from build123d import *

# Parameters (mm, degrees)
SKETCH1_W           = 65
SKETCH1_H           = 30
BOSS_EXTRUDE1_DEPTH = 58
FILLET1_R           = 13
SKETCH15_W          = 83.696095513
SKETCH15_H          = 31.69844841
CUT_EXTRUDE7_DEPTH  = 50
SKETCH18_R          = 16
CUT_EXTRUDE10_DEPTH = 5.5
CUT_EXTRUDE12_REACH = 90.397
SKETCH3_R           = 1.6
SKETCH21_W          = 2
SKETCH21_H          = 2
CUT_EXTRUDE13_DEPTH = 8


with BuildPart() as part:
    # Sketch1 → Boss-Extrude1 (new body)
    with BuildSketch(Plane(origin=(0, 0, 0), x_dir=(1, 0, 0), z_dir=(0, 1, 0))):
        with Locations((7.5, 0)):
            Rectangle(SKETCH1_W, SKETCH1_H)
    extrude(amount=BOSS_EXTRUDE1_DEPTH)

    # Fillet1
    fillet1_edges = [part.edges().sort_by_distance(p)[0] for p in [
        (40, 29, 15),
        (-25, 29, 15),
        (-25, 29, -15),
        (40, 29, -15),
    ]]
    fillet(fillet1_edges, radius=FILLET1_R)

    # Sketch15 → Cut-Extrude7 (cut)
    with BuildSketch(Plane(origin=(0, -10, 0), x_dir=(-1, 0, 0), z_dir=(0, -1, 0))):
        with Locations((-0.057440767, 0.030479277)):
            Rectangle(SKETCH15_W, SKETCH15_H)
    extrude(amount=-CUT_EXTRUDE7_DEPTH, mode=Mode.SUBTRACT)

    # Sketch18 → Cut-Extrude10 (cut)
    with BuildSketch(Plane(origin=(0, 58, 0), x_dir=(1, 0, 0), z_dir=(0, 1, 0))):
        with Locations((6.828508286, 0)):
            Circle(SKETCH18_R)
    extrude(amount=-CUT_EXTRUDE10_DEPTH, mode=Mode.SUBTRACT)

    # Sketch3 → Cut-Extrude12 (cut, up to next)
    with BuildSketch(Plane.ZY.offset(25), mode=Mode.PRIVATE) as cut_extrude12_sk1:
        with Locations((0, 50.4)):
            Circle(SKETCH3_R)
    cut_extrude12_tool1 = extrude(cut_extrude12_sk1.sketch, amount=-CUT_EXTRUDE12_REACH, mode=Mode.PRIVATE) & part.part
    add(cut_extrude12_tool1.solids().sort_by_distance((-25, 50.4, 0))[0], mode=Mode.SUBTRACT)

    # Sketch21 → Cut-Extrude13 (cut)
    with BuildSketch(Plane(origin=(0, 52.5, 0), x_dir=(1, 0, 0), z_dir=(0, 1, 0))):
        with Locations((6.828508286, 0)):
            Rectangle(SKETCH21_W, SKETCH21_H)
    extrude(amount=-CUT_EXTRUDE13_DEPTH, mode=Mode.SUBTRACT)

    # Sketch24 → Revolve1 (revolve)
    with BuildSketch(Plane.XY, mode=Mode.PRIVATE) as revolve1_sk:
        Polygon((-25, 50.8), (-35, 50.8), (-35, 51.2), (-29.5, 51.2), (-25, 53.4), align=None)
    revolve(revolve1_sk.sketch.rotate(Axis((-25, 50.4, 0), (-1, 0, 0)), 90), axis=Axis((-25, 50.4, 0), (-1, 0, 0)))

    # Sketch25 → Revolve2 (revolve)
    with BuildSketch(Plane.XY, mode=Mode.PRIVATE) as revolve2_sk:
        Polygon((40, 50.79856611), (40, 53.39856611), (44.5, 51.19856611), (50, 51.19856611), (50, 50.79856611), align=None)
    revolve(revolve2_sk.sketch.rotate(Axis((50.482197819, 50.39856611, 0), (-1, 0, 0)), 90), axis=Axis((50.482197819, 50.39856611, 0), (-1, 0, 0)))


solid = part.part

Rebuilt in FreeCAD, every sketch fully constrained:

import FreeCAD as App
import Part
import Sketcher

V = App.Vector
Q = App.Units.Quantity


def edges_at(feature, points):
    """Names of the edges that pass closest to the given points."""
    edges = feature.Shape.Edges
    near = lambda p: min(range(len(edges)), key=lambda i: edges[i].distToShape(Part.Vertex(*p))[0])
    return sorted({f"Edge{near(p) + 1}" for p in points})


def add_polygon(sketch, points):
    """Adds a closed chain of lines whose ends are joined by coincident constraints."""
    first, n = sketch.GeometryCount, len(points)
    for a, b in zip(points, points[1:] + points[:1]):
        sketch.addGeometry(Part.LineSegment(App.Vector(*a, 0), App.Vector(*b, 0)), False)
    for i in range(n):
        sketch.addConstraint(Sketcher.Constraint("Coincident", first + i, 2, first + (i + 1) % n, 1))

doc = App.newDocument("Part")
body = doc.addObject("PartDesign::Body", "Body")

# Sketch on XZ plane
sketch1 = doc.addObject("Sketcher::SketchObject", "Sketch")
body.addObject(sketch1)
sketch1.AttachmentSupport = (doc.XZ_Plane, [""])
sketch1.MapMode = "FlatFace"
add_polygon(sketch1, [(-25, -15), (-25, 15), (40, 15), (40, -15)])  # lines 0-3
sketch1.addConstraint([
    Sketcher.Constraint("Vertical", 0),
    Sketcher.Constraint("Horizontal", 1),
    Sketcher.Constraint("Vertical", 2),
    Sketcher.Constraint("Horizontal", 3),
    Sketcher.Constraint("DistanceX", 1, 1, 1, 2, Q("65 mm")),
    Sketcher.Constraint("DistanceY", 0, 1, 0, 2, Q("30 mm")),
    Sketcher.Constraint("DistanceX", 0, 2, -1, 1, Q("25 mm")),
    Sketcher.Constraint("DistanceY", -1, 1, 0, 2, Q("15 mm")),
])
pad1 = doc.addObject("PartDesign::Pad", "Pad")
body.addObject(pad1)
pad1.Profile = sketch1
pad1.Length = 58
pad1.Reversed = True
doc.recompute()

fillet = doc.addObject("PartDesign::Fillet", "Fillet")
body.addObject(fillet)
fillet.Base = (pad1, edges_at(pad1, [
    (40, 29, 15),
    (-25, 29, 15),
    (-25, 29, -15),
    (40, 29, -15),
]))
fillet.Radius = 13

# Sketch on XZ plane
sketch2 = doc.addObject("Sketcher::SketchObject", "Sketch001")
body.addObject(sketch2)
sketch2.AttachmentSupport = (doc.XZ_Plane, [""])
sketch2.MapMode = "FlatFace"
sketch2.AttachmentOffset = App.Placement(V(0, 0, 10), App.Rotation())
add_polygon(sketch2, [(41.905489, -15.879703), (41.905489, 15.818745), (-41.790607, 15.818745), (-41.790607, -15.879703)])  # lines 0-3
sketch2.addConstraint([
    Sketcher.Constraint("Vertical", 0),
    Sketcher.Constraint("Horizontal", 1),
    Sketcher.Constraint("Vertical", 2),
    Sketcher.Constraint("Horizontal", 3),
    Sketcher.Constraint("DistanceY", 0, 1, 0, 2, Q("31.698448 mm")),
    Sketcher.Constraint("DistanceX", 1, 2, 1, 1, Q("83.696096 mm")),
    Sketcher.Constraint("DistanceX", -1, 1, 0, 2, Q("41.905489 mm")),
    Sketcher.Constraint("DistanceY", -1, 1, 0, 2, Q("15.818745 mm")),
])
pocket1 = doc.addObject("PartDesign::Pocket", "Pocket")
body.addObject(pocket1)
pocket1.Profile = sketch2
pocket1.Length = 50

# Sketch on XZ plane
sketch3 = doc.addObject("Sketcher::SketchObject", "Sketch002")
body.addObject(sketch3)
sketch3.AttachmentSupport = (doc.XZ_Plane, [""])
sketch3.MapMode = "FlatFace"
sketch3.AttachmentOffset = App.Placement(V(0, 0, -58), App.Rotation())
sketch3.addGeometry(Part.Circle(V(6.828508, 0, 0), V(0, 0, 1), 16), False)
sketch3.addConstraint([
    Sketcher.Constraint("PointOnObject", 0, 3, -1),
    Sketcher.Constraint("Diameter", 0, Q("32 mm")),
    Sketcher.Constraint("DistanceX", -1, 1, 0, 3, Q("6.828508 mm")),
])
pocket2 = doc.addObject("PartDesign::Pocket", "Pocket001")
body.addObject(pocket2)
pocket2.Profile = sketch3
pocket2.Length = 5.5
pocket2.Reversed = True

# Sketch on YZ plane
sketch4 = doc.addObject("Sketcher::SketchObject", "Sketch003")
body.addObject(sketch4)
sketch4.AttachmentSupport = (doc.YZ_Plane, [""])
sketch4.MapMode = "FlatFace"
sketch4.AttachmentOffset = App.Placement(V(0, 0, -25), App.Rotation())
sketch4.addGeometry(Part.Circle(V(50.4, 0, 0), V(0, 0, 1), 1.6), False)
sketch4.addConstraint([
    Sketcher.Constraint("PointOnObject", 0, 3, -1),
    Sketcher.Constraint("Diameter", 0, Q("3.2 mm")),
    Sketcher.Constraint("DistanceX", -1, 1, 0, 3, Q("50.4 mm")),
])
pocket3 = doc.addObject("PartDesign::Pocket", "Pocket002")
body.addObject(pocket3)
pocket3.Profile = sketch4
pocket3.Type = "UpToFirst"
pocket3.Reversed = True

# Sketch on XZ plane
sketch5 = doc.addObject("Sketcher::SketchObject", "Sketch004")
body.addObject(sketch5)
sketch5.AttachmentSupport = (doc.XZ_Plane, [""])
sketch5.MapMode = "FlatFace"
sketch5.AttachmentOffset = App.Placement(V(0, 0, -52.5), App.Rotation())
add_polygon(sketch5, [(5.828508, -1), (5.828508, 1), (7.828508, 1), (7.828508, -1)])  # lines 0-3
sketch5.addConstraint([
    Sketcher.Constraint("Vertical", 0),
    Sketcher.Constraint("Horizontal", 1),
    Sketcher.Constraint("Vertical", 2),
    Sketcher.Constraint("Horizontal", 3),
    Sketcher.Constraint("Equal", 3, 0),
    Sketcher.Constraint("DistanceX", 1, 1, 1, 2, Q("2 mm")),
    Sketcher.Constraint("DistanceY", -1, 1, 0, 2, Q("1 mm")),
    Sketcher.Constraint("DistanceX", -1, 1, 0, 2, Q("5.828508 mm")),
])
pocket4 = doc.addObject("PartDesign::Pocket", "Pocket003")
body.addObject(pocket4)
pocket4.Profile = sketch5
pocket4.Length = 8
pocket4.Reversed = True

# Sketch on XY plane
sketch6 = doc.addObject("Sketcher::SketchObject", "Sketch005")
body.addObject(sketch6)
sketch6.AttachmentSupport = (doc.XY_Plane, [""])
sketch6.MapMode = "FlatFace"
add_polygon(sketch6, [(-35, 50.8), (-25, 50.8), (-25, 53.4), (-29.5, 51.2), (-35, 51.2)])  # lines 0-4
sketch6.addGeometry(Part.LineSegment(V(-25, 50.4, 0), V(-35, 50.4, 0)), True)  # axis
sketch6.addConstraint([
    Sketcher.Constraint("Horizontal", 0),
    Sketcher.Constraint("Vertical", 1),
    Sketcher.Constraint("Horizontal", 3),
    Sketcher.Constraint("Vertical", 4),
    Sketcher.Constraint("Horizontal", 5),
    Sketcher.Constraint("Vertical", 1, 2, 5, 1),
    Sketcher.Constraint("Vertical", 4, 2, 5, 2),
    Sketcher.Constraint("DistanceX", 0, 1, 0, 2, Q("10 mm")),
    Sketcher.Constraint("DistanceX", 3, 2, 3, 1, Q("5.5 mm")),
    Sketcher.Constraint("DistanceY", 1, 1, 1, 2, Q("2.6 mm")),
    Sketcher.Constraint("DistanceY", 4, 2, 4, 1, Q("0.4 mm")),
    Sketcher.Constraint("DistanceX", 0, 2, -1, 1, Q("25 mm")),
    Sketcher.Constraint("DistanceY", 5, 1, 1, 2, Q("3 mm")),
    Sketcher.Constraint("DistanceY", -1, 1, 0, 2, Q("50.8 mm")),
])
revolution = doc.addObject("PartDesign::Revolution", "Revolution")
body.addObject(revolution)
revolution.Profile = sketch6
revolution.ReferenceAxis = (sketch6, ["Axis0"])
revolution.Angle = 360

# Sketch on XY plane
sketch7 = doc.addObject("Sketcher::SketchObject", "Sketch006")
body.addObject(sketch7)
sketch7.AttachmentSupport = (doc.XY_Plane, [""])
sketch7.MapMode = "FlatFace"
add_polygon(sketch7, [(40, 53.398566), (40, 50.798566), (50, 50.798566), (50, 51.198566), (44.5, 51.198566)])  # lines 0-4
sketch7.addGeometry(Part.LineSegment(V(50, 50.398566, 0), V(40, 50.398566, 0)), True)  # axis
sketch7.addConstraint([
    Sketcher.Constraint("Vertical", 0),
    Sketcher.Constraint("Horizontal", 1),
    Sketcher.Constraint("Vertical", 2),
    Sketcher.Constraint("Horizontal", 3),
    Sketcher.Constraint("Horizontal", 5),
    Sketcher.Constraint("Vertical", 2, 2, 5, 1),
    Sketcher.Constraint("Vertical", 4, 2, 5, 2),
    Sketcher.Constraint("DistanceX", 1, 1, 1, 2, Q("10 mm")),
    Sketcher.Constraint("DistanceX", 3, 2, 3, 1, Q("5.5 mm")),
    Sketcher.Constraint("DistanceY", 0, 2, 0, 1, Q("2.6 mm")),
    Sketcher.Constraint("DistanceY", 2, 1, 2, 2, Q("0.4 mm")),
    Sketcher.Constraint("DistanceX", -1, 1, 0, 2, Q("40 mm")),
    Sketcher.Constraint("DistanceY", 5, 1, 4, 2, Q("3 mm")),
    Sketcher.Constraint("DistanceY", -1, 1, 0, 2, Q("50.798566 mm")),
])
revolution2 = doc.addObject("PartDesign::Revolution", "Revolution001")
body.addObject(revolution2)
revolution2.Profile = sketch7
revolution2.ReferenceAxis = (sketch7, ["Axis0"])
revolution2.Angle = 360

doc.recompute()
